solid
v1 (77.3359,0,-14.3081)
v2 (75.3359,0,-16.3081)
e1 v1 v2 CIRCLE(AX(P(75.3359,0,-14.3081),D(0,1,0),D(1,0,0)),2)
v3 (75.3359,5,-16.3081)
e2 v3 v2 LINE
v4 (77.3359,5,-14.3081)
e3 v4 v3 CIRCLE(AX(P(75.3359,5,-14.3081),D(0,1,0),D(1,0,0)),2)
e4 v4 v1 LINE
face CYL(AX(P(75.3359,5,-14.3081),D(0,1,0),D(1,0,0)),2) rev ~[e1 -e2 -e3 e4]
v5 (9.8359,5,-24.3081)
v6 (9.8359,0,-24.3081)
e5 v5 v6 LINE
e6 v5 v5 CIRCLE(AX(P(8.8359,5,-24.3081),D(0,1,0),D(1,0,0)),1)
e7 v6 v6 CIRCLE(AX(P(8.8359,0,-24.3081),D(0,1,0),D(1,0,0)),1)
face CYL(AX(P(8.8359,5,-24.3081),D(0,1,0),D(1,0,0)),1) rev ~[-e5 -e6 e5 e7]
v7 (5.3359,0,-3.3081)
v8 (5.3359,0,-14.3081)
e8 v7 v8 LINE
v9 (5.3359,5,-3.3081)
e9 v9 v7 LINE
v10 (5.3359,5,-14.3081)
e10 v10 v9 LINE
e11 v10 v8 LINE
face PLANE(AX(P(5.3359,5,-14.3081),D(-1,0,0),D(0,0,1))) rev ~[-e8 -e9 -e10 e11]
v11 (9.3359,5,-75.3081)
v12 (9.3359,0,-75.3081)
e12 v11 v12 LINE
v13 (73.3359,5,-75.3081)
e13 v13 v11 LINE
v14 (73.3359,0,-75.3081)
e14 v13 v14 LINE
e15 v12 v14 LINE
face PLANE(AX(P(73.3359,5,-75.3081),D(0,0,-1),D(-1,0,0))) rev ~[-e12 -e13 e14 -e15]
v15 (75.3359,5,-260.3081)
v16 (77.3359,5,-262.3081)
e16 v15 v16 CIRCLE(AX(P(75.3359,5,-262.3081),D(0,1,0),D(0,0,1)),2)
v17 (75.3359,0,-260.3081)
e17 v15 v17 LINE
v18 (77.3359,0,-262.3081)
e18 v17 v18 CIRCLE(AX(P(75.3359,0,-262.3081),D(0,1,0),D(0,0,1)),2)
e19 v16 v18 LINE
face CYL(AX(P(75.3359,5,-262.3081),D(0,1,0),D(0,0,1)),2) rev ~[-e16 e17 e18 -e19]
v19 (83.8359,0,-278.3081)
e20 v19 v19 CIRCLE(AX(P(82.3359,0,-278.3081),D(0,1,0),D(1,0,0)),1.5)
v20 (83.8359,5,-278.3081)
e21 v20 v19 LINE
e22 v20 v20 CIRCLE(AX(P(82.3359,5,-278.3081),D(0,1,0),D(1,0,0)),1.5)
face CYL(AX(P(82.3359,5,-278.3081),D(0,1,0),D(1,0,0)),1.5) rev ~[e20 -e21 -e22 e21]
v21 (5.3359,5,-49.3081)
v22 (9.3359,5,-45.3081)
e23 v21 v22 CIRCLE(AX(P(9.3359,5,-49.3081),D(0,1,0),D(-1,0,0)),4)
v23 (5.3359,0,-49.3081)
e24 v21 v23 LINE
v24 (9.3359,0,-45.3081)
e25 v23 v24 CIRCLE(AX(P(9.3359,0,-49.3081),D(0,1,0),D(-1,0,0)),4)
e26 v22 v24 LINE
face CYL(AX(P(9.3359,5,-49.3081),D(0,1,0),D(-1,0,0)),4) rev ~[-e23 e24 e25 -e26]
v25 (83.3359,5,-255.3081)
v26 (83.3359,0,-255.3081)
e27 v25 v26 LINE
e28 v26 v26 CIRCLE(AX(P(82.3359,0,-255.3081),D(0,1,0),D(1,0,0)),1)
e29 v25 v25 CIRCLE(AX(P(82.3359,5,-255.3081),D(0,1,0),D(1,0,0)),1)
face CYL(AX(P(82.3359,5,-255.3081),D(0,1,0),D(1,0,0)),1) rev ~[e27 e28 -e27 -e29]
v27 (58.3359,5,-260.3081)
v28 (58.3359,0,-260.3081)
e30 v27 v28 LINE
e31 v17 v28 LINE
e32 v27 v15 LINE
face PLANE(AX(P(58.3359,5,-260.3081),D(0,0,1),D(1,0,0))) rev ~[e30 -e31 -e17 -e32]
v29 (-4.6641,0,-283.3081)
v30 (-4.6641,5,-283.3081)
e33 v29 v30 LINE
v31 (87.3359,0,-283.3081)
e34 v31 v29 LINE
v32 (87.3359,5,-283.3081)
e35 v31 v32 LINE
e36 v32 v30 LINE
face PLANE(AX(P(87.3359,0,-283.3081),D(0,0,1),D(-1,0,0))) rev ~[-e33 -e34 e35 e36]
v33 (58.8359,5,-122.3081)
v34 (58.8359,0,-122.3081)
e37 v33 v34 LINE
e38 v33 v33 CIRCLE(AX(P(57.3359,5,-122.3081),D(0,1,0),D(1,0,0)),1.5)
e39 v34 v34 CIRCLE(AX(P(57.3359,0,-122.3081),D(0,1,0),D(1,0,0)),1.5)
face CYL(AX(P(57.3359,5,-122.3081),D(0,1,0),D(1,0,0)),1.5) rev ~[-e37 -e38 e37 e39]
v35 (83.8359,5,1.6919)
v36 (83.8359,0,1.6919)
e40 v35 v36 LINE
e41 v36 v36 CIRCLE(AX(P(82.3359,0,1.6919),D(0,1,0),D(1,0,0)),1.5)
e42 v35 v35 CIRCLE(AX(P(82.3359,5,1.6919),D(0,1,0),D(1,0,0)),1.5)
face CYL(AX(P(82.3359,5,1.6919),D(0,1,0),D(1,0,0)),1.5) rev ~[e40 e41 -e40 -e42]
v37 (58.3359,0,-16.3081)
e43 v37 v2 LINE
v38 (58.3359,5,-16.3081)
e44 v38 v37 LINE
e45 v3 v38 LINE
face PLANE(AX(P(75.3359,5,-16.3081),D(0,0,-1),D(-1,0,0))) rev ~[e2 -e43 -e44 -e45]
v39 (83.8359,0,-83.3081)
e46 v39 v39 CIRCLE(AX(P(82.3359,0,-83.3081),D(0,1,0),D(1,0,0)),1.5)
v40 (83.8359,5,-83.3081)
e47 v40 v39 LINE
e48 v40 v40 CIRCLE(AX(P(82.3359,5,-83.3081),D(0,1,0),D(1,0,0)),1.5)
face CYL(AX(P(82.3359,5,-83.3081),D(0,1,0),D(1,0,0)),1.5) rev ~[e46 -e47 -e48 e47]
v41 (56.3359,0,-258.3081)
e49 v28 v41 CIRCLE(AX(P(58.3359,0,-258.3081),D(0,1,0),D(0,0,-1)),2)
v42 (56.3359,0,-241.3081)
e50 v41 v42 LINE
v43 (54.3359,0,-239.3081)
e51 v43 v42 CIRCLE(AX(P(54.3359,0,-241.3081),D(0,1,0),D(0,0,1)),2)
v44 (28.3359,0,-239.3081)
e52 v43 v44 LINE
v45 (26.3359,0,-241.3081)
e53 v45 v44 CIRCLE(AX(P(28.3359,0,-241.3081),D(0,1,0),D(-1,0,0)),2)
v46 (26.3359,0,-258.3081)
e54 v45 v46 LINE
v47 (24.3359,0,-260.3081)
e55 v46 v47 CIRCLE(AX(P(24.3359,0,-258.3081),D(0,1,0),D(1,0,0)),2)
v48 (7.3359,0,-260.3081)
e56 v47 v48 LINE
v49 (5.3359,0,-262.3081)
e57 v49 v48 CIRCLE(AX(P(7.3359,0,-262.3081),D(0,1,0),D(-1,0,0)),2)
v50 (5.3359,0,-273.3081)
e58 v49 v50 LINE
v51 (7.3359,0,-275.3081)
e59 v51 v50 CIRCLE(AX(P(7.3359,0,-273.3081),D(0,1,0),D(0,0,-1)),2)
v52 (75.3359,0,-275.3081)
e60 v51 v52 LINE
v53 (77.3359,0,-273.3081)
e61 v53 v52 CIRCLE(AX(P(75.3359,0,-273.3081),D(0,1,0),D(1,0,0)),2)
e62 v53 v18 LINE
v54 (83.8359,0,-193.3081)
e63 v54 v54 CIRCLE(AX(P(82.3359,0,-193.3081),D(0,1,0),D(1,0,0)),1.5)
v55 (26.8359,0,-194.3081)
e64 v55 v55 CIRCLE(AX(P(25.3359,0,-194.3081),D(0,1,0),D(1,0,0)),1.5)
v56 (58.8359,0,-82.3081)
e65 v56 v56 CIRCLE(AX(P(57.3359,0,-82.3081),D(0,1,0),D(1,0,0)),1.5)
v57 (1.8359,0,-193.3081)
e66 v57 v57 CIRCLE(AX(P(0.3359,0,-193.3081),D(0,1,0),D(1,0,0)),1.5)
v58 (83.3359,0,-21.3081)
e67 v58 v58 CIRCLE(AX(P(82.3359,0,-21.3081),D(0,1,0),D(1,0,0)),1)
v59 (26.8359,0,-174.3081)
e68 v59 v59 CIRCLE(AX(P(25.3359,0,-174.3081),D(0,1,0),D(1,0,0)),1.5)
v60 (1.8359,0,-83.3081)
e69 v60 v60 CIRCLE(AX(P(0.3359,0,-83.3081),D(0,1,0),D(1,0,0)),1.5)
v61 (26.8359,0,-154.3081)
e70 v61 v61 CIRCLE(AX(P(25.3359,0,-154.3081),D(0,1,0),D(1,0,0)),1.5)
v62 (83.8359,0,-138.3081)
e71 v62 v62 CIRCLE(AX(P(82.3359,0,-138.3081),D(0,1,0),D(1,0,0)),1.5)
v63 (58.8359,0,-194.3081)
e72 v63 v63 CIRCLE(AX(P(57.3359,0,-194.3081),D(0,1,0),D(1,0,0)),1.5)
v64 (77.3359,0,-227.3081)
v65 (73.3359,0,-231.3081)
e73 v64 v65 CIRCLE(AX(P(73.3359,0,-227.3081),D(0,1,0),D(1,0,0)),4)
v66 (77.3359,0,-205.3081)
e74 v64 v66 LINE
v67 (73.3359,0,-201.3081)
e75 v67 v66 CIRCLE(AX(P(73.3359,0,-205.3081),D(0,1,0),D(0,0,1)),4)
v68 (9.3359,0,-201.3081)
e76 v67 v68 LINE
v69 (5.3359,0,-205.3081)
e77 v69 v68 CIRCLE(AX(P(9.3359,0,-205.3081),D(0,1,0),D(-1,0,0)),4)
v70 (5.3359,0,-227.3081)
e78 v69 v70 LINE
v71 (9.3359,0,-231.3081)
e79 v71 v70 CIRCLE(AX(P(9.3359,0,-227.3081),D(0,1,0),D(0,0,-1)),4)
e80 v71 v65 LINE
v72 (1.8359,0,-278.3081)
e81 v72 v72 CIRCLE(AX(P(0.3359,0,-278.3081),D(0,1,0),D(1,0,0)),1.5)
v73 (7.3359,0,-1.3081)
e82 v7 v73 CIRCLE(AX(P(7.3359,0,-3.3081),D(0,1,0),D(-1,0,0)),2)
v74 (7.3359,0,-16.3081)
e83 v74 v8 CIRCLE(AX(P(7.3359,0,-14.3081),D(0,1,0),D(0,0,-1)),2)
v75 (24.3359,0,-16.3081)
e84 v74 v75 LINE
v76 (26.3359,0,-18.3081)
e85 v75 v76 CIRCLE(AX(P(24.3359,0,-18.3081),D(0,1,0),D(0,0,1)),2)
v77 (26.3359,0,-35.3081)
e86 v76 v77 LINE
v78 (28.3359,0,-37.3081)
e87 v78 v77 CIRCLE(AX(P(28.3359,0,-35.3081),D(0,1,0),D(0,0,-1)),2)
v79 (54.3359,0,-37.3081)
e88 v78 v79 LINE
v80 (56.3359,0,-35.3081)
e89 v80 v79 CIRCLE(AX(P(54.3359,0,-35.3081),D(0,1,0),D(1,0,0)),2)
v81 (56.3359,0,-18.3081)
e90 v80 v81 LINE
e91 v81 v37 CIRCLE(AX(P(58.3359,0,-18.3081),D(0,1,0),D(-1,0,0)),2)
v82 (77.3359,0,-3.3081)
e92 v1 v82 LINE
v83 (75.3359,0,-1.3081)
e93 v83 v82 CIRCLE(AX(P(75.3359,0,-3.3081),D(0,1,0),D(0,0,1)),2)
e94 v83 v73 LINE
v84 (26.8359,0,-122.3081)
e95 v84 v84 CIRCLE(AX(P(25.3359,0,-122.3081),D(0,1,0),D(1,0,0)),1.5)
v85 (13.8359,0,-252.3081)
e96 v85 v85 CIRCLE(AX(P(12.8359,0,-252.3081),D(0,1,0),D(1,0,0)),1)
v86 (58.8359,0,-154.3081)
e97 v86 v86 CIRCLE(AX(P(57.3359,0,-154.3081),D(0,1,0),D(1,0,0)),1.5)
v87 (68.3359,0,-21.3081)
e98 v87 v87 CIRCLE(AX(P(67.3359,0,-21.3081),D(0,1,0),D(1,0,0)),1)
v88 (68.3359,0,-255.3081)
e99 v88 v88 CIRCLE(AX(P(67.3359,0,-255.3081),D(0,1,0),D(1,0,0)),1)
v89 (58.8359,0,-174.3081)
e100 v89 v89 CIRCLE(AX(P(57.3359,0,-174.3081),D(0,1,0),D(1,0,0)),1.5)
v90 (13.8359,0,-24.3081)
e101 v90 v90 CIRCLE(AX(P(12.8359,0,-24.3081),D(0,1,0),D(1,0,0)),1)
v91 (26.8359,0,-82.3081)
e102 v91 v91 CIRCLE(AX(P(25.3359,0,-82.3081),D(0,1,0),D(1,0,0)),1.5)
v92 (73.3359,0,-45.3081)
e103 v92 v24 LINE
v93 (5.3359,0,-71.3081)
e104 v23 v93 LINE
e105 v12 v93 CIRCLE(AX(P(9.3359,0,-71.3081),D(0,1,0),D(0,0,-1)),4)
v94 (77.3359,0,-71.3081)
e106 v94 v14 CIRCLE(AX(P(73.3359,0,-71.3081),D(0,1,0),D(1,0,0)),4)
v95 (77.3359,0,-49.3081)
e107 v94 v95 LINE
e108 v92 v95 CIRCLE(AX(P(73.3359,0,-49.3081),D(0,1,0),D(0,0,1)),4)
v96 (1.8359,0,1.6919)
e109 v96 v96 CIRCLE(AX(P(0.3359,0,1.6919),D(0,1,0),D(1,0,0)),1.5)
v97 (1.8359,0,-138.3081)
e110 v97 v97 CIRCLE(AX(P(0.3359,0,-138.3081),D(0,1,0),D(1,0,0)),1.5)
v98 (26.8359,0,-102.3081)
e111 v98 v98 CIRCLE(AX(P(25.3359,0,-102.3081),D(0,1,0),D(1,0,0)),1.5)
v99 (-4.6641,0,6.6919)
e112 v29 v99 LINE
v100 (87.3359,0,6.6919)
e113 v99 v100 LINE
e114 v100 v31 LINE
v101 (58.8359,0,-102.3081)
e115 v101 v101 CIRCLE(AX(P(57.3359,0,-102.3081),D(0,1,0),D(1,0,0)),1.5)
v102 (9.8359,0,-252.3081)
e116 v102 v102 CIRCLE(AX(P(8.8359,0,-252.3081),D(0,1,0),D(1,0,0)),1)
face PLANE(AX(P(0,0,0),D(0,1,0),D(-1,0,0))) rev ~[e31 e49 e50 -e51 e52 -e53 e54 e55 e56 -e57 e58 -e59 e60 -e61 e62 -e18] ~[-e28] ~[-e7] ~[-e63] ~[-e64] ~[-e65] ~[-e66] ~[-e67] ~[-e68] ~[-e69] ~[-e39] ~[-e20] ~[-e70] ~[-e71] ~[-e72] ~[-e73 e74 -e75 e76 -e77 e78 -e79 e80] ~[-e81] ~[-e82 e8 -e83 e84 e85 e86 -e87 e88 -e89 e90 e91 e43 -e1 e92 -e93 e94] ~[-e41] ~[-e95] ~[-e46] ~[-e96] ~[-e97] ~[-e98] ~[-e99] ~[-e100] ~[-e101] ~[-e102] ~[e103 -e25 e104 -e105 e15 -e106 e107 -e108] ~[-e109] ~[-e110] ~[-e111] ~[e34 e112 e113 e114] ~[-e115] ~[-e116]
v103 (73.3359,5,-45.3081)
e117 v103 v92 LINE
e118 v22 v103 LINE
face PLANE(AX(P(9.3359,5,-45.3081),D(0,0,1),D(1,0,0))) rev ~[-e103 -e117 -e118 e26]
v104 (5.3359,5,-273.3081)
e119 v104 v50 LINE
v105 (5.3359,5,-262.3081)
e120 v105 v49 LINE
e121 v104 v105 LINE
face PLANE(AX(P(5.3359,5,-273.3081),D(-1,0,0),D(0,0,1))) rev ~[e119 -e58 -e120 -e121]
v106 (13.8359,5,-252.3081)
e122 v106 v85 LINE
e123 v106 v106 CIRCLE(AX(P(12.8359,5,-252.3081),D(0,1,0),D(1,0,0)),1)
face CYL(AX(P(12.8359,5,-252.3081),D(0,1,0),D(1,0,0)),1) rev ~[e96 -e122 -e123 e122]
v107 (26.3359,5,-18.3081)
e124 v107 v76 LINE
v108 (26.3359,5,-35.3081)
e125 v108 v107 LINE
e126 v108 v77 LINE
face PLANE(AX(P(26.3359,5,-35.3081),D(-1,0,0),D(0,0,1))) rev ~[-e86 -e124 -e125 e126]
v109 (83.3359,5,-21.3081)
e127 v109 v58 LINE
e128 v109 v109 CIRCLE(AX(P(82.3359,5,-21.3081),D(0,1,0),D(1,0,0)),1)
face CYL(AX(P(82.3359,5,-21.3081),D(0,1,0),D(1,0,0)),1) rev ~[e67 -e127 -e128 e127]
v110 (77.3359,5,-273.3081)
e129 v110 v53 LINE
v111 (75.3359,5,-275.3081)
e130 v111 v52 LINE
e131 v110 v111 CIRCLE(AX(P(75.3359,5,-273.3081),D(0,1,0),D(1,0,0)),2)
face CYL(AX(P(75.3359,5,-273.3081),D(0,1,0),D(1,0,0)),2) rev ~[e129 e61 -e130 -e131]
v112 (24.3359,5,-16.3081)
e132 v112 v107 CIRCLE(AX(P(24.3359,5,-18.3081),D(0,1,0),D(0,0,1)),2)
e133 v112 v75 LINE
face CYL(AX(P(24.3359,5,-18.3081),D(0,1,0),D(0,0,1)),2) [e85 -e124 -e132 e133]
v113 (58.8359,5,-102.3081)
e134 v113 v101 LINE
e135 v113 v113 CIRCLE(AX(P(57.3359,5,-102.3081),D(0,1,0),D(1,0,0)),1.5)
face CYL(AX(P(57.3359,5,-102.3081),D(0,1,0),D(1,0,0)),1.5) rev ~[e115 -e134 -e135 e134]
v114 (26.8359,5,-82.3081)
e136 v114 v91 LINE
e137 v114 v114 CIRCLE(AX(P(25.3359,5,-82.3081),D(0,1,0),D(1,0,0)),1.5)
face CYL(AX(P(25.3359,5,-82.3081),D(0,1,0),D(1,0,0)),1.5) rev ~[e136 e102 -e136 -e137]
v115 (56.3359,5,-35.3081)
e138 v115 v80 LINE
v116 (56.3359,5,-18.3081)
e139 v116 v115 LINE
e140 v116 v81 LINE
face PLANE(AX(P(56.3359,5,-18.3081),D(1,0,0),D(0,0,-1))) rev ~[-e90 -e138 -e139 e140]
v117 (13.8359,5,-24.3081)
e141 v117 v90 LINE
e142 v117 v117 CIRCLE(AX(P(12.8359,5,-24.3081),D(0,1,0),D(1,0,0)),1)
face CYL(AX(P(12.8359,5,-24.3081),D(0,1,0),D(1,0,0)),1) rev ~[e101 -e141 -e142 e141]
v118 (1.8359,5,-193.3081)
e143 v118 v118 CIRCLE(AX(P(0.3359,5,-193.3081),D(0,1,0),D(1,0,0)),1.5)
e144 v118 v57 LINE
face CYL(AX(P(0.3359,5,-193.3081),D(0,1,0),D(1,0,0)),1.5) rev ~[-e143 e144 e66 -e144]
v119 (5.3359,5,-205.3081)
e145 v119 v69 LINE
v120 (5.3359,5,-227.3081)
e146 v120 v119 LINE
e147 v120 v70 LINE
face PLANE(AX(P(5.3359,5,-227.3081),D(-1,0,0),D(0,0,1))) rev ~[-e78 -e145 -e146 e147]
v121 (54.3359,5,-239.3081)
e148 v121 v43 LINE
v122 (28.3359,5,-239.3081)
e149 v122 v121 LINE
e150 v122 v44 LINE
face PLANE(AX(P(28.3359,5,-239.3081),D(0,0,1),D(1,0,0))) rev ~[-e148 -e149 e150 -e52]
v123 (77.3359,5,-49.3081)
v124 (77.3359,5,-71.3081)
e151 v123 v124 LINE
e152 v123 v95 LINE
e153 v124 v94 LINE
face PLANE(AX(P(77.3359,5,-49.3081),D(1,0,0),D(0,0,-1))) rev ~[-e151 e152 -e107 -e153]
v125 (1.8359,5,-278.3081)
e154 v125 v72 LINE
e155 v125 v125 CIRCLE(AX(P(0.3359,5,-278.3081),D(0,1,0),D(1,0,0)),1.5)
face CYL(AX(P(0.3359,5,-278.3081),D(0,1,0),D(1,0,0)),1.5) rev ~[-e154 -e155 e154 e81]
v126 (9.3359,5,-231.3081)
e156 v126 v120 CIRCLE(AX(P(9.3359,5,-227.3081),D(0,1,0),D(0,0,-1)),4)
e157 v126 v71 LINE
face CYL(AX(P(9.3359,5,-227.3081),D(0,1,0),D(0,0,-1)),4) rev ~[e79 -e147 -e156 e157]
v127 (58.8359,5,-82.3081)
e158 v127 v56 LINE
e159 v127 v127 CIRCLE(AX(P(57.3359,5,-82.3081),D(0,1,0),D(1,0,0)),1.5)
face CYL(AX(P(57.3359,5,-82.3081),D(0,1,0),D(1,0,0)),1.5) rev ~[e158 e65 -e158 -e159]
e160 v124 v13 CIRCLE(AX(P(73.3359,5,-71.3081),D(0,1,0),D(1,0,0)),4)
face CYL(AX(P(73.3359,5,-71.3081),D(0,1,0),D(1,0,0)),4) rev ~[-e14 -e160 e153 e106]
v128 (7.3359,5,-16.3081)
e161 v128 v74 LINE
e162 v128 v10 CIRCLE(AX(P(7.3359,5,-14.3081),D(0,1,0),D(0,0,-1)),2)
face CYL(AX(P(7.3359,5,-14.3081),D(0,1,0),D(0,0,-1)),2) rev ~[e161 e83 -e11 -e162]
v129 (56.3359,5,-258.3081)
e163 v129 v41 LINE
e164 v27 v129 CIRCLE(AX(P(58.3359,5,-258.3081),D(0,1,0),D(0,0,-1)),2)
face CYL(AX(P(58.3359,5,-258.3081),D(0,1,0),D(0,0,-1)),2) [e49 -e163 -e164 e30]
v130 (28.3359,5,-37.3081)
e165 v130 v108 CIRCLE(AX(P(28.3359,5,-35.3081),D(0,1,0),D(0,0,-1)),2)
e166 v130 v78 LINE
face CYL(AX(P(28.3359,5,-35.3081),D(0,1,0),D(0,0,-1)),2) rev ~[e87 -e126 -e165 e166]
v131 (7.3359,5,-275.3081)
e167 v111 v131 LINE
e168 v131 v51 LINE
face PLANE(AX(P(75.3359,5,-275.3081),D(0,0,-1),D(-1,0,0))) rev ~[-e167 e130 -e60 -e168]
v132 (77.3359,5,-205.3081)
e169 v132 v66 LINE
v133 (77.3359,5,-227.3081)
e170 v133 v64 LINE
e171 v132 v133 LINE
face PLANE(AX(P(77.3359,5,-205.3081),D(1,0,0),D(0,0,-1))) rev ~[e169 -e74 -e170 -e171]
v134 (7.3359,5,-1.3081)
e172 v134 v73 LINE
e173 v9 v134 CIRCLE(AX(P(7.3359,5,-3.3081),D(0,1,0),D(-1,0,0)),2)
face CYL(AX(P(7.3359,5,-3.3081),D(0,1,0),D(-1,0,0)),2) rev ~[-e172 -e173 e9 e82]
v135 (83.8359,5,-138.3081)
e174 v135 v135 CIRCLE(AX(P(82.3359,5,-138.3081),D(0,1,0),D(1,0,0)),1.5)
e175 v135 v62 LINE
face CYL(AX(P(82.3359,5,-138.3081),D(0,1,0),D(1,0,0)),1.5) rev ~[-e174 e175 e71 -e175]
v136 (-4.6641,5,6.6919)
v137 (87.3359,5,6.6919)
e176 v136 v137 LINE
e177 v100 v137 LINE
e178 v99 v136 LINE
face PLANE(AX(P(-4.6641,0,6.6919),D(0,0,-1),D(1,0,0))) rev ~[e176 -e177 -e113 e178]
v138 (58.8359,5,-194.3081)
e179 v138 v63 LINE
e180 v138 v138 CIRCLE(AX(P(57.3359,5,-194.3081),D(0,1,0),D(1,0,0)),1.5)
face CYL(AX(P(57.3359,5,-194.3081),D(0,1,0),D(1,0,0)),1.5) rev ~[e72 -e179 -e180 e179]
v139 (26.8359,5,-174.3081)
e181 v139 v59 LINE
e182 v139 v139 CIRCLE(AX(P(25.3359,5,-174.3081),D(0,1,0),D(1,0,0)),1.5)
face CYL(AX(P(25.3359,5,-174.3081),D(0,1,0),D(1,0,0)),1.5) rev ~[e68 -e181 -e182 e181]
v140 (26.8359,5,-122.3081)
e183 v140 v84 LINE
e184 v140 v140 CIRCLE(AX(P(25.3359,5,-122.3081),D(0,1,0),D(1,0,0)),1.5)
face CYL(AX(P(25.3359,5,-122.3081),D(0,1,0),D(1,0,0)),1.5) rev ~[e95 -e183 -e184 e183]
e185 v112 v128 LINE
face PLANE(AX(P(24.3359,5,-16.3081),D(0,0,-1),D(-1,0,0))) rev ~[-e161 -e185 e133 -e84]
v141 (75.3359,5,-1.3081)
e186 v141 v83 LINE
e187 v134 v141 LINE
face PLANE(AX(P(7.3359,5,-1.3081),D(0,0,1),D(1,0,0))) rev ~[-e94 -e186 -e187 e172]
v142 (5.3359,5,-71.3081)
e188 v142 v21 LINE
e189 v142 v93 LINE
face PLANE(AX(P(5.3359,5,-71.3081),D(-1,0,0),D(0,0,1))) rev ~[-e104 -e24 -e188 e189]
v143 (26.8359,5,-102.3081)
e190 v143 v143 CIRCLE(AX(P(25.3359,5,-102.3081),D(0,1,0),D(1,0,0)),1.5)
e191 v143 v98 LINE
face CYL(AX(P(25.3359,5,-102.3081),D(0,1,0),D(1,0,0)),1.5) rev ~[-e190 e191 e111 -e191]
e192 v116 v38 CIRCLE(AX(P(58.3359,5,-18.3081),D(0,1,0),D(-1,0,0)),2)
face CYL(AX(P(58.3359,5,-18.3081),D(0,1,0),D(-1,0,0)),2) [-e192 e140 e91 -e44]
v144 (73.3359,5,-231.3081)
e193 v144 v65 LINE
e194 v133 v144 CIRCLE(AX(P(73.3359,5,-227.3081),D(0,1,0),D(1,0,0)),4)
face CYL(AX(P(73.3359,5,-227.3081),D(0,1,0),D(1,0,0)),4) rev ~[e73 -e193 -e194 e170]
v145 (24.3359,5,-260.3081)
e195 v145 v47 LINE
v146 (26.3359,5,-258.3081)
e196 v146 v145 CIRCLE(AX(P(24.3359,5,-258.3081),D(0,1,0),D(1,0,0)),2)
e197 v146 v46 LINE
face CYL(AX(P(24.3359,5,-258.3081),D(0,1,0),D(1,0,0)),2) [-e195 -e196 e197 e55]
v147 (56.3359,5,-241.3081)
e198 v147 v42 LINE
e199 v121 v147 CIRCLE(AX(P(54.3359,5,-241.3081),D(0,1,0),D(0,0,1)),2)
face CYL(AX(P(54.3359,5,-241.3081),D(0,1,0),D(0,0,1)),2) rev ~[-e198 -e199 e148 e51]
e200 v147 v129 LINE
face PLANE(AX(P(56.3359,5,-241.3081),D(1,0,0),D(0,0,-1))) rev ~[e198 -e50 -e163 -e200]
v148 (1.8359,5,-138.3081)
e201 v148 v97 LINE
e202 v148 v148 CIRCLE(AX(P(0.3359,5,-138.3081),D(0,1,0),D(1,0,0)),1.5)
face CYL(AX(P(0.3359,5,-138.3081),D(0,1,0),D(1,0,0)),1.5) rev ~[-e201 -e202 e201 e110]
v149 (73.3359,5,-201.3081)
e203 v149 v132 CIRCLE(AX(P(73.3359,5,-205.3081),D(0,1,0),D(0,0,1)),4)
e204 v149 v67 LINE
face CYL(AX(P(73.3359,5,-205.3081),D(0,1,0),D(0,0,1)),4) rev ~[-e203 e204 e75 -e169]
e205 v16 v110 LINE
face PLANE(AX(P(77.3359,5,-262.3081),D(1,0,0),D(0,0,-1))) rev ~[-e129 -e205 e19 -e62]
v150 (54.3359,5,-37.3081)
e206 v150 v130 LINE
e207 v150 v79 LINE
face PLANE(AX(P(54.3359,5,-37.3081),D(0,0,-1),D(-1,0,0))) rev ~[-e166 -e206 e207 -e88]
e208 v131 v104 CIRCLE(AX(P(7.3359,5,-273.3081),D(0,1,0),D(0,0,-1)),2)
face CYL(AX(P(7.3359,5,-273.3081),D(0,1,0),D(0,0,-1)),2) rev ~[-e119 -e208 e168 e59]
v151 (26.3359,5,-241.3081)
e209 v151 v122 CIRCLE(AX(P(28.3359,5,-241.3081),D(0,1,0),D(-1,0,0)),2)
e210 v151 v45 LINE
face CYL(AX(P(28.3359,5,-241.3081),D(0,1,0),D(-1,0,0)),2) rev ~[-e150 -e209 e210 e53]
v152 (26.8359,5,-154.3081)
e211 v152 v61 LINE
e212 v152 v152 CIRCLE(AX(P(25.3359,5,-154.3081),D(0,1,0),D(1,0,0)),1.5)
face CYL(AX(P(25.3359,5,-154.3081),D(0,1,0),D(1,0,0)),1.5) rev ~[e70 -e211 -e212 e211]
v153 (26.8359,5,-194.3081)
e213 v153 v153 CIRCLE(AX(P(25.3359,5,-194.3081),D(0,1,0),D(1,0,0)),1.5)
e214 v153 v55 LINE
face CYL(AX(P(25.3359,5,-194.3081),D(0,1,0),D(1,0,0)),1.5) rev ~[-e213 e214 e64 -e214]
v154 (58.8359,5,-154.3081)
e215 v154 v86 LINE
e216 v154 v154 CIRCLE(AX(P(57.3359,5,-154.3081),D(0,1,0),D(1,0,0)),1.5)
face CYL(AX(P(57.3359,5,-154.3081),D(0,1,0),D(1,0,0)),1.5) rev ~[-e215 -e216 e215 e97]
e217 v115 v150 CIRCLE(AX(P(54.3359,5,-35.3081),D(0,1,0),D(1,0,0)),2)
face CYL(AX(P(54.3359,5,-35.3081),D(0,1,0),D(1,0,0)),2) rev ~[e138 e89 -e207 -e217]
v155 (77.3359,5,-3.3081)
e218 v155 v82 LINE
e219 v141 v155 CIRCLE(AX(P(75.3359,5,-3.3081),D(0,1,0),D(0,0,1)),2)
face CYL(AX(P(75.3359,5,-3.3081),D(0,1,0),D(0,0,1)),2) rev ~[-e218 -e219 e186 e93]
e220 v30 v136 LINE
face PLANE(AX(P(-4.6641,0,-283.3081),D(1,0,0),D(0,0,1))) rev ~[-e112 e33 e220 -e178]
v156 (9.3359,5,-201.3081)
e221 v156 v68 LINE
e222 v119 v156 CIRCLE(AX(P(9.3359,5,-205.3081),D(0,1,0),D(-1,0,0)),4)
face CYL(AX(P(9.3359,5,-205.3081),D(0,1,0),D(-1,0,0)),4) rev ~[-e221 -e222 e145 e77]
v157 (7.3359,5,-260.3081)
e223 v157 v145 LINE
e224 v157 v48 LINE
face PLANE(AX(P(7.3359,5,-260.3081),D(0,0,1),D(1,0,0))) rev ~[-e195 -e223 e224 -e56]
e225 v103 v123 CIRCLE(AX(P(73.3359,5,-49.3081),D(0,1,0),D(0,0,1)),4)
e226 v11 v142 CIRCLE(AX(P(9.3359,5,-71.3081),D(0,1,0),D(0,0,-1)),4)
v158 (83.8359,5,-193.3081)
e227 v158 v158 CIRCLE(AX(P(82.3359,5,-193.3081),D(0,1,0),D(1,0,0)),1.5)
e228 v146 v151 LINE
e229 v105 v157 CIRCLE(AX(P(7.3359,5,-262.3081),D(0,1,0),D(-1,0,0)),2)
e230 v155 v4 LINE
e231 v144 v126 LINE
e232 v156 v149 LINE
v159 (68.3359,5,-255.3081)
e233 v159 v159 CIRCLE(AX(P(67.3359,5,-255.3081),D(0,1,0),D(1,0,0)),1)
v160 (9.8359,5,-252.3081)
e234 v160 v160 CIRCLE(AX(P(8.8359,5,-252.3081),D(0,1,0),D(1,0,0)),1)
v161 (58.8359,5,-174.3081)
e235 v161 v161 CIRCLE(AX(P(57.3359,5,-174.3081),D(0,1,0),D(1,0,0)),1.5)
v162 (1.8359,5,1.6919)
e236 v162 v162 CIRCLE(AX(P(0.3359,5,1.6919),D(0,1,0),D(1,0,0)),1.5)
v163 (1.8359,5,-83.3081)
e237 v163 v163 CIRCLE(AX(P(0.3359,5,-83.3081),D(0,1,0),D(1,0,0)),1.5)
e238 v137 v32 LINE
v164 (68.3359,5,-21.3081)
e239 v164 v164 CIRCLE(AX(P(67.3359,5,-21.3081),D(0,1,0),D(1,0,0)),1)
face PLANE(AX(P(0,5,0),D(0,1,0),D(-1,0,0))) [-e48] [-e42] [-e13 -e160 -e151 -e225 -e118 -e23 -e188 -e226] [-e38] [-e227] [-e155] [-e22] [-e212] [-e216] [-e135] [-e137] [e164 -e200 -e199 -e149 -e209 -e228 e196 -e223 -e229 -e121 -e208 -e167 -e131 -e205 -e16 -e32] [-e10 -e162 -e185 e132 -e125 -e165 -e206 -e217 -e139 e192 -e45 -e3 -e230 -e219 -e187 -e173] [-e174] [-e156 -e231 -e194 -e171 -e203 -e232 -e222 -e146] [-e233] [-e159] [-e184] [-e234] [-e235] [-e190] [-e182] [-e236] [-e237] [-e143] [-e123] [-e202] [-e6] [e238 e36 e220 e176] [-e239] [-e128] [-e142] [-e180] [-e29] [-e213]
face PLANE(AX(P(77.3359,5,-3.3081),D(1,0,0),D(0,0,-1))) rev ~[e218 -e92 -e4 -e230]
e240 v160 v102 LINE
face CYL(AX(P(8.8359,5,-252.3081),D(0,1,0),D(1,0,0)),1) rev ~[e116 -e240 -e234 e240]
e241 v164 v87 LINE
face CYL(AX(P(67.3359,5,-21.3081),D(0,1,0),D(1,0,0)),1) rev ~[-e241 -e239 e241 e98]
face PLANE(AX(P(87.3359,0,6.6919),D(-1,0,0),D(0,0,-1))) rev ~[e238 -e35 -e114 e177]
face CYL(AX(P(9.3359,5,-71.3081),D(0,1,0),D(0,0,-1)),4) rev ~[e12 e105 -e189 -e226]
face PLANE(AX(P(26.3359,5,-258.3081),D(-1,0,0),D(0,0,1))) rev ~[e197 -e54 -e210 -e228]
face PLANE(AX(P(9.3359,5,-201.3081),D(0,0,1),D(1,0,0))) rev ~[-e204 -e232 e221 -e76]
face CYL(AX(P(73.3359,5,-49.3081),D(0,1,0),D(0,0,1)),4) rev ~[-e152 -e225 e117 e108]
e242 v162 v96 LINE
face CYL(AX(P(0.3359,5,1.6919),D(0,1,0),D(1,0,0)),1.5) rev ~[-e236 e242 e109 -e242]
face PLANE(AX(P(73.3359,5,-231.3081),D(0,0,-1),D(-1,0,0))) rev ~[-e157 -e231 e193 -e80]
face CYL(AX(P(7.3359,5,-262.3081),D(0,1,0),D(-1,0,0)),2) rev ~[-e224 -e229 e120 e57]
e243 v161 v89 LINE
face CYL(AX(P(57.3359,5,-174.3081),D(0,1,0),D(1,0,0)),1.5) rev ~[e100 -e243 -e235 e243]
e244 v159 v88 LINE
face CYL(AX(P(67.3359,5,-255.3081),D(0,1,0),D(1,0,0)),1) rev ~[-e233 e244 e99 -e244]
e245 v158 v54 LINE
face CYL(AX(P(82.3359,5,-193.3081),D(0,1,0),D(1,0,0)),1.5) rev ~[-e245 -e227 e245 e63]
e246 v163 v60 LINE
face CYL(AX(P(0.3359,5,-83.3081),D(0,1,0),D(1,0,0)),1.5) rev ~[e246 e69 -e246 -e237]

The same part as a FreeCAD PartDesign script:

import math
import FreeCAD as App
import Part
import Sketcher
Q = App.Units.Quantity

doc = App.newDocument("Part")
body = doc.addObject("PartDesign::Body", "Body")

# Sketch on XZ plane
sketch1 = body.newObject("Sketcher::SketchObject", "Sketch")
sketch1.AttachmentSupport = (doc.getObject("XZ_Plane"), [""])
sketch1.MapMode = "FlatFace"
sketch1.addGeometry(Part.LineSegment(App.Vector(-4.6641, -283.3081, 0), App.Vector(-4.6641, 6.6919, 0)), False)
sketch1.addGeometry(Part.LineSegment(App.Vector(-4.6641, 6.6919, 0), App.Vector(87.3359, 6.6919, 0)), False)
sketch1.addGeometry(Part.LineSegment(App.Vector(87.3359, 6.6919, 0), App.Vector(87.3359, -283.3081, 0)), False)
sketch1.addGeometry(Part.LineSegment(App.Vector(87.3359, -283.3081, 0), App.Vector(-4.6641, -283.3081, 0)), False)
sketch1.addConstraint(Sketcher.Constraint("Coincident", 0, 2, 1, 1))
sketch1.addConstraint(Sketcher.Constraint("Coincident", 1, 2, 2, 1))
sketch1.addConstraint(Sketcher.Constraint("Coincident", 2, 2, 3, 1))
sketch1.addConstraint(Sketcher.Constraint("Coincident", 3, 2, 0, 1))
sketch1.addConstraint(Sketcher.Constraint("Vertical", 0))
sketch1.addConstraint(Sketcher.Constraint("Horizontal", 1))
sketch1.addConstraint(Sketcher.Constraint("Vertical", 2))
sketch1.addConstraint(Sketcher.Constraint("Horizontal", 3))
sketch1.addConstraint(Sketcher.Constraint("DistanceX", 1, 1, 1, 2, Q("92 mm")))
sketch1.addConstraint(Sketcher.Constraint("DistanceY", 0, 1, 0, 2, Q("290 mm")))
sketch1.addConstraint(Sketcher.Constraint("DistanceX", 0, 2, -1, 1, Q("4.664 mm")))
sketch1.addConstraint(Sketcher.Constraint("DistanceY", -1, 1, 0, 2, Q("6.692 mm")))
pad1 = body.newObject("PartDesign::Pad", "Pad")
pad1.Profile = sketch1
pad1.Length = 5
pad1.Reversed = True

# Sketch on XZ plane
sketch2 = body.newObject("Sketcher::SketchObject", "Sketch001")
sketch2.AttachmentSupport = (doc.getObject("XZ_Plane"), [""])
sketch2.MapMode = "FlatFace"
sketch2.AttachmentOffset = App.Placement(App.Vector(0, 0, -5), App.Rotation())
sketch2.addGeometry(Part.ArcOfCircle(Part.Circle(App.Vector(9.3359, -49.3081, 0), App.Vector(0, 0, 1), 4), math.radians(90), math.radians(180)), False)
sketch2.addGeometry(Part.LineSegment(App.Vector(9.3359, -45.3081, 0), App.Vector(73.3359, -45.3081, 0)), False)
sketch2.addGeometry(Part.ArcOfCircle(Part.Circle(App.Vector(73.3359, -49.3081, 0), App.Vector(0, 0, 1), 4), math.radians(0), math.radians(90)), False)
sketch2.addGeometry(Part.LineSegment(App.Vector(77.3359, -49.3081, 0), App.Vector(77.3359, -71.3081, 0)), False)
sketch2.addGeometry(Part.ArcOfCircle(Part.Circle(App.Vector(73.3359, -71.3081, 0), App.Vector(0, 0, 1), 4), math.radians(-90), math.radians(0)), False)
sketch2.addGeometry(Part.LineSegment(App.Vector(73.3359, -75.3081, 0), App.Vector(9.3359, -75.3081, 0)), False)
sketch2.addGeometry(Part.ArcOfCircle(Part.Circle(App.Vector(9.3359, -71.3081, 0), App.Vector(0, 0, 1), 4), math.radians(180), math.radians(270)), False)
sketch2.addGeometry(Part.LineSegment(App.Vector(5.3359, -71.3081, 0), App.Vector(5.3359, -49.3081, 0)), False)
sketch2.addGeometry(Part.ArcOfCircle(Part.Circle(App.Vector(9.3359, -205.3081, 0), App.Vector(0, 0, 1), 4), math.radians(90), math.radians(180)), False)
sketch2.addGeometry(Part.LineSegment(App.Vector(9.3359, -201.3081, 0), App.Vector(73.3359, -201.3081, 0)), False)
sketch2.addGeometry(Part.ArcOfCircle(Part.Circle(App.Vector(73.3359, -205.3081, 0), App.Vector(0, 0, 1), 4), math.radians(0), math.radians(90)), False)
sketch2.addGeometry(Part.LineSegment(App.Vector(77.3359, -205.3081, 0), App.Vector(77.3359, -227.3081, 0)), False)
sketch2.addGeometry(Part.ArcOfCircle(Part.Circle(App.Vector(73.3359, -227.3081, 0), App.Vector(0, 0, 1), 4), math.radians(-90), math.radians(0)), False)
sketch2.addGeometry(Part.LineSegment(App.Vector(73.3359, -231.3081, 0), App.Vector(9.3359, -231.3081, 0)), False)
sketch2.addGeometry(Part.ArcOfCircle(Part.Circle(App.Vector(9.3359, -227.3081, 0), App.Vector(0, 0, 1), 4), math.radians(180), math.radians(270)), False)
sketch2.addGeometry(Part.LineSegment(App.Vector(5.3359, -227.3081, 0), App.Vector(5.3359, -205.3081, 0)), False)
sketch2.addGeometry(Part.ArcOfCircle(Part.Circle(App.Vector(7.3359, -3.3081, 0), App.Vector(0, 0, 1), 2), math.radians(90), math.radians(180)), False)
sketch2.addGeometry(Part.LineSegment(App.Vector(7.3359, -1.3081, 0), App.Vector(75.3359, -1.3081, 0)), False)
sketch2.addGeometry(Part.ArcOfCircle(Part.Circle(App.Vector(75.3359, -3.3081, 0), App.Vector(0, 0, 1), 2), math.radians(0), math.radians(90)), False)
sketch2.addGeometry(Part.LineSegment(App.Vector(77.3359, -3.3081, 0), App.Vector(77.3359, -14.3081, 0)), False)
sketch2.addGeometry(Part.ArcOfCircle(Part.Circle(App.Vector(75.3359, -14.3081, 0), App.Vector(0, 0, 1), 2), math.radians(-90), math.radians(0)), False)
sketch2.addGeometry(Part.LineSegment(App.Vector(75.3359, -16.3081, 0), App.Vector(58.3359, -16.3081, 0)), False)
sketch2.addGeometry(Part.ArcOfCircle(Part.Circle(App.Vector(58.3359, -18.3081, 0), App.Vector(0, 0, 1), 2), math.radians(90), math.radians(180)), False)
sketch2.addGeometry(Part.LineSegment(App.Vector(56.3359, -18.3081, 0), App.Vector(56.3359, -35.3081, 0)), False)
sketch2.addGeometry(Part.ArcOfCircle(Part.Circle(App.Vector(54.3359, -35.3081, 0), App.Vector(0, 0, 1), 2), math.radians(-90), math.radians(0)), False)
sketch2.addGeometry(Part.LineSegment(App.Vector(54.3359, -37.3081, 0), App.Vector(28.3359, -37.3081, 0)), False)
sketch2.addGeometry(Part.ArcOfCircle(Part.Circle(App.Vector(28.3359, -35.3081, 0), App.Vector(0, 0, 1), 2), math.radians(180), math.radians(270)), False)
sketch2.addGeometry(Part.LineSegment(App.Vector(26.3359, -35.3081, 0), App.Vector(26.3359, -18.3081, 0)), False)
sketch2.addGeometry(Part.ArcOfCircle(Part.Circle(App.Vector(24.3359, -18.3081, 0), App.Vector(0, 0, 1), 2), math.radians(0), math.radians(90)), False)
sketch2.addGeometry(Part.LineSegment(App.Vector(24.3359, -16.3081, 0), App.Vector(7.3359, -16.3081, 0)), False)
sketch2.addGeometry(Part.ArcOfCircle(Part.Circle(App.Vector(7.3359, -14.3081, 0), App.Vector(0, 0, 1), 2), math.radians(180), math.radians(270)), False)
sketch2.addGeometry(Part.LineSegment(App.Vector(5.3359, -14.3081, 0), App.Vector(5.3359, -3.3081, 0)), False)
sketch2.addGeometry(Part.ArcOfCircle(Part.Circle(App.Vector(7.3359, -273.3081, 0), App.Vector(0, 0, 1), 2), math.radians(180), math.radians(270)), False)
sketch2.addGeometry(Part.LineSegment(App.Vector(5.3359, -273.3081, 0), App.Vector(5.3359, -262.3081, 0)), False)
sketch2.addGeometry(Part.ArcOfCircle(Part.Circle(App.Vector(7.3359, -262.3081, 0), App.Vector(0, 0, 1), 2), math.radians(90), math.radians(180)), False)
sketch2.addGeometry(Part.LineSegment(App.Vector(7.3359, -260.3081, 0), App.Vector(24.3359, -260.3081, 0)), False)
sketch2.addGeometry(Part.ArcOfCircle(Part.Circle(App.Vector(24.3359, -258.3081, 0), App.Vector(0, 0, 1), 2), math.radians(-90), math.radians(0)), False)
sketch2.addGeometry(Part.LineSegment(App.Vector(26.3359, -258.3081, 0), App.Vector(26.3359, -241.3081, 0)), False)
sketch2.addGeometry(Part.ArcOfCircle(Part.Circle(App.Vector(28.3359, -241.3081, 0), App.Vector(0, 0, 1), 2), math.radians(90), math.radians(180)), False)
sketch2.addGeometry(Part.LineSegment(App.Vector(28.3359, -239.3081, 0), App.Vector(54.3359, -239.3081, 0)), False)
sketch2.addGeometry(Part.ArcOfCircle(Part.Circle(App.Vector(54.3359, -241.3081, 0), App.Vector(0, 0, 1), 2), math.radians(0), math.radians(90)), False)
sketch2.addGeometry(Part.LineSegment(App.Vector(56.3359, -241.3081, 0), App.Vector(56.3359, -258.3081, 0)), False)
sketch2.addGeometry(Part.ArcOfCircle(Part.Circle(App.Vector(58.3359, -258.3081, 0), App.Vector(0, 0, 1), 2), math.radians(180), math.radians(270)), False)
sketch2.addGeometry(Part.LineSegment(App.Vector(58.3359, -260.3081, 0), App.Vector(75.3359, -260.3081, 0)), False)
sketch2.addGeometry(Part.ArcOfCircle(Part.Circle(App.Vector(75.3359, -262.3081, 0), App.Vector(0, 0, 1), 2), math.radians(0), math.radians(90)), False)
sketch2.addGeometry(Part.LineSegment(App.Vector(77.3359, -262.3081, 0), App.Vector(77.3359, -273.3081, 0)), False)
sketch2.addGeometry(Part.ArcOfCircle(Part.Circle(App.Vector(75.3359, -273.3081, 0), App.Vector(0, 0, 1), 2), math.radians(-90), math.radians(0)), False)
sketch2.addGeometry(Part.LineSegment(App.Vector(75.3359, -275.3081, 0), App.Vector(7.3359, -275.3081, 0)), False)
sketch2.addConstraint(Sketcher.Constraint("Tangent", 0, 1, 1, 1))
sketch2.addConstraint(Sketcher.Constraint("Tangent", 1, 2, 2, 2))
sketch2.addConstraint(Sketcher.Constraint("Tangent", 2, 1, 3, 1))
sketch2.addConstraint(Sketcher.Constraint("Tangent", 3, 2, 4, 2))
sketch2.addConstraint(Sketcher.Constraint("Tangent", 4, 1, 5, 1))
sketch2.addConstraint(Sketcher.Constraint("Tangent", 5, 2, 6, 2))
sketch2.addConstraint(Sketcher.Constraint("Tangent", 6, 1, 7, 1))
sketch2.addConstraint(Sketcher.Constraint("Tangent", 7, 2, 0, 2))
sketch2.addConstraint(Sketcher.Constraint("Tangent", 8, 1, 9, 1))
sketch2.addConstraint(Sketcher.Constraint("Tangent", 9, 2, 10, 2))
sketch2.addConstraint(Sketcher.Constraint("Tangent", 10, 1, 11, 1))
sketch2.addConstraint(Sketcher.Constraint("Tangent", 11, 2, 12, 2))
sketch2.addConstraint(Sketcher.Constraint("Tangent", 12, 1, 13, 1))
sketch2.addConstraint(Sketcher.Constraint("Tangent", 13, 2, 14, 2))
sketch2.addConstraint(Sketcher.Constraint("Tangent", 14, 1, 15, 1))
sketch2.addConstraint(Sketcher.Constraint("Tangent", 15, 2, 8, 2))
sketch2.addConstraint(Sketcher.Constraint("Tangent", 16, 1, 17, 1))
sketch2.addConstraint(Sketcher.Constraint("Tangent", 17, 2, 18, 2))
sketch2.addConstraint(Sketcher.Constraint("Tangent", 18, 1, 19, 1))
sketch2.addConstraint(Sketcher.Constraint("Tangent", 19, 2, 20, 2))
sketch2.addConstraint(Sketcher.Constraint("Tangent", 20, 1, 21, 1))
sketch2.addConstraint(Sketcher.Constraint("Tangent", 21, 2, 22, 1))
sketch2.addConstraint(Sketcher.Constraint("Tangent", 22, 2, 23, 1))
sketch2.addConstraint(Sketcher.Constraint("Tangent", 23, 2, 24, 2))
sketch2.addConstraint(Sketcher.Constraint("Tangent", 24, 1, 25, 1))
sketch2.addConstraint(Sketcher.Constraint("Tangent", 25, 2, 26, 2))
sketch2.addConstraint(Sketcher.Constraint("Tangent", 26, 1, 27, 1))
sketch2.addConstraint(Sketcher.Constraint("Tangent", 27, 2, 28, 1))
sketch2.addConstraint(Sketcher.Constraint("Tangent", 28, 2, 29, 1))
sketch2.addConstraint(Sketcher.Constraint("Tangent", 29, 2, 30, 2))
sketch2.addConstraint(Sketcher.Constraint("Tangent", 30, 1, 31, 1))
sketch2.addConstraint(Sketcher.Constraint("Tangent", 31, 2, 16, 2))
sketch2.addConstraint(Sketcher.Constraint("Tangent", 32, 1, 33, 1))
sketch2.addConstraint(Sketcher.Constraint("Tangent", 33, 2, 34, 2))
sketch2.addConstraint(Sketcher.Constraint("Tangent", 34, 1, 35, 1))
sketch2.addConstraint(Sketcher.Constraint("Tangent", 35, 2, 36, 1))
sketch2.addConstraint(Sketcher.Constraint("Tangent", 36, 2, 37, 1))
sketch2.addConstraint(Sketcher.Constraint("Tangent", 37, 2, 38, 2))
sketch2.addConstraint(Sketcher.Constraint("Tangent", 38, 1, 39, 1))
sketch2.addConstraint(Sketcher.Constraint("Tangent", 39, 2, 40, 2))
sketch2.addConstraint(Sketcher.Constraint("Tangent", 40, 1, 41, 1))
sketch2.addConstraint(Sketcher.Constraint("Tangent", 41, 2, 42, 1))
sketch2.addConstraint(Sketcher.Constraint("Tangent", 42, 2, 43, 1))
sketch2.addConstraint(Sketcher.Constraint("Tangent", 43, 2, 44, 2))
sketch2.addConstraint(Sketcher.Constraint("Tangent", 44, 1, 45, 1))
sketch2.addConstraint(Sketcher.Constraint("Tangent", 45, 2, 46, 2))
sketch2.addConstraint(Sketcher.Constraint("Tangent", 46, 1, 47, 1))
sketch2.addConstraint(Sketcher.Constraint("Tangent", 47, 2, 32, 2))
sketch2.addConstraint(Sketcher.Constraint("Horizontal", 1))
sketch2.addConstraint(Sketcher.Constraint("Vertical", 3))
sketch2.addConstraint(Sketcher.Constraint("Horizontal", 5))
sketch2.addConstraint(Sketcher.Constraint("Vertical", 7))
sketch2.addConstraint(Sketcher.Constraint("Horizontal", 9))
sketch2.addConstraint(Sketcher.Constraint("Vertical", 11))
sketch2.addConstraint(Sketcher.Constraint("Horizontal", 13))
sketch2.addConstraint(Sketcher.Constraint("Vertical", 15))
sketch2.addConstraint(Sketcher.Constraint("Horizontal", 17))
sketch2.addConstraint(Sketcher.Constraint("Vertical", 19))
sketch2.addConstraint(Sketcher.Constraint("Horizontal", 21))
sketch2.addConstraint(Sketcher.Constraint("Vertical", 23))
sketch2.addConstraint(Sketcher.Constraint("Horizontal", 25))
sketch2.addConstraint(Sketcher.Constraint("Vertical", 27))
sketch2.addConstraint(Sketcher.Constraint("Horizontal", 29))
sketch2.addConstraint(Sketcher.Constraint("Vertical", 31))
sketch2.addConstraint(Sketcher.Constraint("Vertical", 33))
sketch2.addConstraint(Sketcher.Constraint("Horizontal", 35))
sketch2.addConstraint(Sketcher.Constraint("Vertical", 37))
sketch2.addConstraint(Sketcher.Constraint("Horizontal", 39))
sketch2.addConstraint(Sketcher.Constraint("Vertical", 41))
sketch2.addConstraint(Sketcher.Constraint("Horizontal", 43))
sketch2.addConstraint(Sketcher.Constraint("Vertical", 45))
sketch2.addConstraint(Sketcher.Constraint("Horizontal", 47))
sketch2.addConstraint(Sketcher.Constraint("Equal", 0, 2))
sketch2.addConstraint(Sketcher.Constraint("Equal", 2, 4))
sketch2.addConstraint(Sketcher.Constraint("Equal", 4, 6))
sketch2.addConstraint(Sketcher.Constraint("Equal", 6, 8))
sketch2.addConstraint(Sketcher.Constraint("Equal", 8, 10))
sketch2.addConstraint(Sketcher.Constraint("Equal", 10, 12))
sketch2.addConstraint(Sketcher.Constraint("Equal", 12, 14))
sketch2.addConstraint(Sketcher.Constraint("Equal", 16, 18))
sketch2.addConstraint(Sketcher.Constraint("Equal", 18, 20))
sketch2.addConstraint(Sketcher.Constraint("Equal", 20, 22))
sketch2.addConstraint(Sketcher.Constraint("Equal", 22, 24))
sketch2.addConstraint(Sketcher.Constraint("Equal", 24, 26))
sketch2.addConstraint(Sketcher.Constraint("Equal", 26, 28))
sketch2.addConstraint(Sketcher.Constraint("Equal", 28, 30))
sketch2.addConstraint(Sketcher.Constraint("Equal", 30, 32))
sketch2.addConstraint(Sketcher.Constraint("Equal", 32, 34))
sketch2.addConstraint(Sketcher.Constraint("Equal", 34, 36))
sketch2.addConstraint(Sketcher.Constraint("Equal", 36, 38))
sketch2.addConstraint(Sketcher.Constraint("Equal", 38, 40))
sketch2.addConstraint(Sketcher.Constraint("Equal", 40, 42))
sketch2.addConstraint(Sketcher.Constraint("Equal", 42, 44))
sketch2.addConstraint(Sketcher.Constraint("Equal", 44, 46))
sketch2.addConstraint(Sketcher.Constraint("Horizontal", 22, 3, 28, 3))
sketch2.addConstraint(Sketcher.Constraint("Horizontal", 36, 3, 42, 3))
sketch2.addConstraint(Sketcher.Constraint("Vertical", 6, 3, 8, 3))
sketch2.addConstraint(Sketcher.Constraint("Vertical", 4, 3, 10, 3))
sketch2.addConstraint(Sketcher.Constraint("Vertical", 30, 3, 32, 3))
sketch2.addConstraint(Sketcher.Constraint("Vertical", 28, 3, 36, 3))
sketch2.addConstraint(Sketcher.Constraint("Vertical", 24, 3, 40, 3))
sketch2.addConstraint(Sketcher.Constraint("Vertical", 20, 3, 44, 3))
sketch2.addConstraint(Sketcher.Constraint("Vertical", 11, 2, 18, 1))
sketch2.addConstraint(Sketcher.Constraint("Vertical", 15, 2, 30, 1))
sketch2.addConstraint(Sketcher.Constraint("Equal", 21, 29))
sketch2.addConstraint(Sketcher.Constraint("Equal", 7, 11))
sketch2.addConstraint(Sketcher.Constraint("Equal", 43, 23))
sketch2.addConstraint(Sketcher.Constraint("Equal", 31, 33))
sketch2.addConstraint(Sketcher.Constraint("Equal", 27, 37))
sketch2.addConstraint(Sketcher.Constraint("Radius", 0, Q("4 mm")))
sketch2.addConstraint(Sketcher.Constraint("Radius", 16, Q("2 mm")))
sketch2.addConstraint(Sketcher.Constraint("DistanceX", 1, 1, 1, 2, Q("64 mm")))
sketch2.addConstraint(Sketcher.Constraint("DistanceX", 21, 2, 21, 1, Q("17 mm")))
sketch2.addConstraint(Sketcher.Constraint("DistanceY", 3, 2, 3, 1, Q("22 mm")))
sketch2.addConstraint(Sketcher.Constraint("DistanceY", 19, 2, 19, 1, Q("11 mm")))
sketch2.addConstraint(Sketcher.Constraint("DistanceX", -1, 1, 0, 3, Q("9.336 mm")))
sketch2.addConstraint(Sketcher.Constraint("DistanceY", 0, 3, -1, 1, Q("49.308 mm")))
sketch2.addConstraint(Sketcher.Constraint("DistanceY", 8, 3, -1, 1, Q("205.308 mm")))
sketch2.addConstraint(Sketcher.Constraint("DistanceY", 16, 3, -1, 1, Q("3.308 mm")))
sketch2.addConstraint(Sketcher.Constraint("DistanceY", 32, 3, -1, 1, Q("273.308 mm")))
pocket1 = body.newObject("PartDesign::Pocket", "Pocket")
pocket1.Profile = sketch2
pocket1.Type = "UpToFirst"
pocket1.Reversed = True

# Sketch on XZ plane
sketch3 = body.newObject("Sketcher::SketchObject", "Sketch002")
sketch3.AttachmentSupport = (doc.getObject("XZ_Plane"), [""])
sketch3.MapMode = "FlatFace"
sketch3.AttachmentOffset = App.Placement(App.Vector(0, 0, -5), App.Rotation())
sketch3.addGeometry(Part.Circle(App.Vector(0.3359, 1.6919, 0), App.Vector(0, 0, 1), 1.5), False)
sketch3.addGeometry(Part.Circle(App.Vector(82.3359, 1.6919, 0), App.Vector(0, 0, 1), 1.5), False)
sketch3.addGeometry(Part.Circle(App.Vector(0.3359, -83.3081, 0), App.Vector(0, 0, 1), 1.5), False)
sketch3.addGeometry(Part.Circle(App.Vector(0.3359, -138.3081, 0), App.Vector(0, 0, 1), 1.5), False)
sketch3.addGeometry(Part.Circle(App.Vector(0.3359, -193.3081, 0), App.Vector(0, 0, 1), 1.5), False)
sketch3.addGeometry(Part.Circle(App.Vector(0.3359, -278.3081, 0), App.Vector(0, 0, 1), 1.5), False)
sketch3.addGeometry(Part.Circle(App.Vector(82.3359, -83.3081, 0), App.Vector(0, 0, 1), 1.5), False)
sketch3.addGeometry(Part.Circle(App.Vector(82.3359, -138.3081, 0), App.Vector(0, 0, 1), 1.5), False)
sketch3.addGeometry(Part.Circle(App.Vector(82.3359, -193.3081, 0), App.Vector(0, 0, 1), 1.5), False)
sketch3.addGeometry(Part.Circle(App.Vector(82.3359, -278.3081, 0), App.Vector(0, 0, 1), 1.5), False)
sketch3.addGeometry(Part.Circle(App.Vector(82.3359, -21.3081, 0), App.Vector(0, 0, 1), 1), False)
sketch3.addGeometry(Part.Circle(App.Vector(67.3359, -21.3081, 0), App.Vector(0, 0, 1), 1), False)
sketch3.addGeometry(Part.Circle(App.Vector(82.3359, -255.3081, 0), App.Vector(0, 0, 1), 1), False)
sketch3.addGeometry(Part.Circle(App.Vector(67.3359, -255.3081, 0), App.Vector(0, 0, 1), 1), False)
sketch3.addGeometry(Part.Circle(App.Vector(25.3359, -82.3081, 0), App.Vector(0, 0, 1), 1.5), False)
sketch3.addGeometry(Part.Circle(App.Vector(25.3359, -102.3081, 0), App.Vector(0, 0, 1), 1.5), False)
sketch3.addGeometry(Part.Circle(App.Vector(57.3359, -82.3081, 0), App.Vector(0, 0, 1), 1.5), False)
sketch3.addGeometry(Part.Circle(App.Vector(57.3359, -102.3081, 0), App.Vector(0, 0, 1), 1.5), False)
sketch3.addGeometry(Part.Circle(App.Vector(25.3359, -194.3081, 0), App.Vector(0, 0, 1), 1.5), False)
sketch3.addGeometry(Part.Circle(App.Vector(25.3359, -174.3081, 0), App.Vector(0, 0, 1), 1.5), False)
sketch3.addGeometry(Part.Circle(App.Vector(57.3359, -194.3081, 0), App.Vector(0, 0, 1), 1.5), False)
sketch3.addGeometry(Part.Circle(App.Vector(57.3359, -174.3081, 0), App.Vector(0, 0, 1), 1.5), False)
sketch3.addGeometry(Part.Circle(App.Vector(57.3359, -122.3081, 0), App.Vector(0, 0, 1), 1.5), False)
sketch3.addGeometry(Part.Circle(App.Vector(25.3359, -122.3081, 0), App.Vector(0, 0, 1), 1.5), False)
sketch3.addGeometry(Part.Circle(App.Vector(25.3359, -154.3081, 0), App.Vector(0, 0, 1), 1.5), False)
sketch3.addGeometry(Part.Circle(App.Vector(57.3359, -154.3081, 0), App.Vector(0, 0, 1), 1.5), False)
sketch3.addGeometry(Part.Circle(App.Vector(8.8359, -24.3081, 0), App.Vector(0, 0, 1), 1), False)
sketch3.addGeometry(Part.Circle(App.Vector(12.8359, -24.3081, 0), App.Vector(0, 0, 1), 1), False)
sketch3.addGeometry(Part.Circle(App.Vector(12.8359, -252.3081, 0), App.Vector(0, 0, 1), 1), False)
sketch3.addGeometry(Part.Circle(App.Vector(8.8359, -252.3081, 0), App.Vector(0, 0, 1), 1), False)
sketch3.addConstraint(Sketcher.Constraint("Equal", 0, 1))
sketch3.addConstraint(Sketcher.Constraint("Equal", 1, 2))
sketch3.addConstraint(Sketcher.Constraint("Equal", 2, 3))
sketch3.addConstraint(Sketcher.Constraint("Equal", 3, 4))
sketch3.addConstraint(Sketcher.Constraint("Equal", 4, 5))
sketch3.addConstraint(Sketcher.Constraint("Equal", 5, 6))
sketch3.addConstraint(Sketcher.Constraint("Equal", 6, 7))
sketch3.addConstraint(Sketcher.Constraint("Equal", 7, 8))
sketch3.addConstraint(Sketcher.Constraint("Equal", 8, 9))
sketch3.addConstraint(Sketcher.Constraint("Equal", 10, 11))
sketch3.addConstraint(Sketcher.Constraint("Equal", 11, 12))
sketch3.addConstraint(Sketcher.Constraint("Equal", 12, 13))
sketch3.addConstraint(Sketcher.Constraint("Equal", 9, 14))
sketch3.addConstraint(Sketcher.Constraint("Equal", 14, 15))
sketch3.addConstraint(Sketcher.Constraint("Equal", 15, 16))
sketch3.addConstraint(Sketcher.Constraint("Equal", 16, 17))
sketch3.addConstraint(Sketcher.Constraint("Equal", 17, 18))
sketch3.addConstraint(Sketcher.Constraint("Equal", 18, 19))
sketch3.addConstraint(Sketcher.Constraint("Equal", 19, 20))
sketch3.addConstraint(Sketcher.Constraint("Equal", 20, 21))
sketch3.addConstraint(Sketcher.Constraint("Equal", 21, 22))
sketch3.addConstraint(Sketcher.Constraint("Equal", 22, 23))
sketch3.addConstraint(Sketcher.Constraint("Equal", 23, 24))
sketch3.addConstraint(Sketcher.Constraint("Equal", 24, 25))
sketch3.addConstraint(Sketcher.Constraint("Equal", 13, 26))
sketch3.addConstraint(Sketcher.Constraint("Equal", 26, 27))
sketch3.addConstraint(Sketcher.Constraint("Equal", 27, 28))
sketch3.addConstraint(Sketcher.Constraint("Equal", 28, 29))
sketch3.addConstraint(Sketcher.Constraint("Horizontal", 0, 3, 1, 3))
sketch3.addConstraint(Sketcher.Constraint("Horizontal", 2, 3, 6, 3))
sketch3.addConstraint(Sketcher.Constraint("Horizontal", 3, 3, 7, 3))
sketch3.addConstraint(Sketcher.Constraint("Horizontal", 4, 3, 8, 3))
sketch3.addConstraint(Sketcher.Constraint("Horizontal", 5, 3, 9, 3))
sketch3.addConstraint(Sketcher.Constraint("Horizontal", 10, 3, 11, 3))
sketch3.addConstraint(Sketcher.Constraint("Horizontal", 12, 3, 13, 3))
sketch3.addConstraint(Sketcher.Constraint("Horizontal", 14, 3, 16, 3))
sketch3.addConstraint(Sketcher.Constraint("Horizontal", 15, 3, 17, 3))
sketch3.addConstraint(Sketcher.Constraint("Horizontal", 18, 3, 20, 3))
sketch3.addConstraint(Sketcher.Constraint("Horizontal", 19, 3, 21, 3))
sketch3.addConstraint(Sketcher.Constraint("Horizontal", 22, 3, 23, 3))
sketch3.addConstraint(Sketcher.Constraint("Horizontal", 24, 3, 25, 3))
sketch3.addConstraint(Sketcher.Constraint("Horizontal", 26, 3, 27, 3))
sketch3.addConstraint(Sketcher.Constraint("Horizontal", 28, 3, 29, 3))
sketch3.addConstraint(Sketcher.Constraint("Vertical", 0, 3, 2, 3))
sketch3.addConstraint(Sketcher.Constraint("Vertical", 2, 3, 3, 3))
sketch3.addConstraint(Sketcher.Constraint("Vertical", 3, 3, 4, 3))
sketch3.addConstraint(Sketcher.Constraint("Vertical", 4, 3, 5, 3))
sketch3.addConstraint(Sketcher.Constraint("Vertical", 1, 3, 6, 3))
sketch3.addConstraint(Sketcher.Constraint("Vertical", 6, 3, 7, 3))
sketch3.addConstraint(Sketcher.Constraint("Vertical", 7, 3, 8, 3))
sketch3.addConstraint(Sketcher.Constraint("Vertical", 8, 3, 9, 3))
sketch3.addConstraint(Sketcher.Constraint("Vertical", 9, 3, 10, 3))
sketch3.addConstraint(Sketcher.Constraint("Vertical", 10, 3, 12, 3))
sketch3.addConstraint(Sketcher.Constraint("Vertical", 11, 3, 13, 3))
sketch3.addConstraint(Sketcher.Constraint("Vertical", 14, 3, 15, 3))
sketch3.addConstraint(Sketcher.Constraint("Vertical", 16, 3, 17, 3))
sketch3.addConstraint(Sketcher.Constraint("Vertical", 15, 3, 18, 3))
sketch3.addConstraint(Sketcher.Constraint("Vertical", 18, 3, 19, 3))
sketch3.addConstraint(Sketcher.Constraint("Vertical", 17, 3, 20, 3))
sketch3.addConstraint(Sketcher.Constraint("Vertical", 20, 3, 21, 3))
sketch3.addConstraint(Sketcher.Constraint("Vertical", 21, 3, 22, 3))
sketch3.addConstraint(Sketcher.Constraint("Vertical", 19, 3, 23, 3))
sketch3.addConstraint(Sketcher.Constraint("Vertical", 23, 3, 24, 3))
sketch3.addConstraint(Sketcher.Constraint("Vertical", 22, 3, 25, 3))
sketch3.addConstraint(Sketcher.Constraint("Vertical", 27, 3, 28, 3))
sketch3.addConstraint(Sketcher.Constraint("Vertical", 26, 3, 29, 3))
sketch3.addConstraint(Sketcher.Constraint("Diameter", 0, Q("3 mm")))
sketch3.addConstraint(Sketcher.Constraint("Diameter", 10, Q("2 mm")))
sketch3.addConstraint(Sketcher.Constraint("DistanceY", 15, 3, 14, 3, Q("20 mm")))
sketch3.addConstraint(Sketcher.Constraint("DistanceY", 18, 3, 19, 3, Q("20 mm")))
sketch3.addConstraint(Sketcher.Constraint("DistanceY", 22, 3, 17, 3, Q("20 mm")))
sketch3.addConstraint(Sketcher.Constraint("DistanceY", 19, 3, 24, 3, Q("20 mm")))
sketch3.addConstraint(Sketcher.Constraint("DistanceY", 26, 3, 11, 3, Q("3 mm")))
sketch3.addConstraint(Sketcher.Constraint("DistanceY", 13, 3, 28, 3, Q("3 mm")))
sketch3.addConstraint(Sketcher.Constraint("DistanceX", 0, 3, 1, 3, Q("82 mm")))
sketch3.addConstraint(Sketcher.Constraint("DistanceY", 2, 3, 0, 3, Q("85 mm")))
sketch3.addConstraint(Sketcher.Constraint("DistanceY", 3, 3, 2, 3, Q("55 mm")))
sketch3.addConstraint(Sketcher.Constraint("DistanceY", 4, 3, 3, 3, Q("55 mm")))
sketch3.addConstraint(Sketcher.Constraint("DistanceY", 5, 3, 4, 3, Q("85 mm")))
sketch3.addConstraint(Sketcher.Constraint("DistanceY", 10, 3, 1, 3, Q("23 mm")))
sketch3.addConstraint(Sketcher.Constraint("DistanceX", 11, 3, 10, 3, Q("15 mm")))
sketch3.addConstraint(Sketcher.Constraint("DistanceY", 9, 3, 12, 3, Q("23 mm")))
sketch3.addConstraint(Sketcher.Constraint("DistanceX", 2, 3, 14, 3, Q("25 mm")))
sketch3.addConstraint(Sketcher.Constraint("DistanceY", 2, 3, 14, 3, Q("1 mm")))
sketch3.addConstraint(Sketcher.Constraint("DistanceX", 16, 3, 6, 3, Q("25 mm")))
sketch3.addConstraint(Sketcher.Constraint("DistanceY", 18, 3, 4, 3, Q("1 mm")))
sketch3.addConstraint(Sketcher.Constraint("DistanceX", 26, 3, 27, 3, Q("4 mm")))
sketch3.addConstraint(Sketcher.Constraint("DistanceX", 0, 3, 26, 3, Q("8.5 mm")))
sketch3.addConstraint(Sketcher.Constraint("DistanceX", -1, 1, 0, 3, Q("0.336 mm")))
sketch3.addConstraint(Sketcher.Constraint("DistanceY", -1, 1, 0, 3, Q("1.692 mm")))
pocket2 = body.newObject("PartDesign::Pocket", "Pocket001")
pocket2.Profile = sketch3
pocket2.Length = 5
pocket2.Reversed = True

doc.recompute()
